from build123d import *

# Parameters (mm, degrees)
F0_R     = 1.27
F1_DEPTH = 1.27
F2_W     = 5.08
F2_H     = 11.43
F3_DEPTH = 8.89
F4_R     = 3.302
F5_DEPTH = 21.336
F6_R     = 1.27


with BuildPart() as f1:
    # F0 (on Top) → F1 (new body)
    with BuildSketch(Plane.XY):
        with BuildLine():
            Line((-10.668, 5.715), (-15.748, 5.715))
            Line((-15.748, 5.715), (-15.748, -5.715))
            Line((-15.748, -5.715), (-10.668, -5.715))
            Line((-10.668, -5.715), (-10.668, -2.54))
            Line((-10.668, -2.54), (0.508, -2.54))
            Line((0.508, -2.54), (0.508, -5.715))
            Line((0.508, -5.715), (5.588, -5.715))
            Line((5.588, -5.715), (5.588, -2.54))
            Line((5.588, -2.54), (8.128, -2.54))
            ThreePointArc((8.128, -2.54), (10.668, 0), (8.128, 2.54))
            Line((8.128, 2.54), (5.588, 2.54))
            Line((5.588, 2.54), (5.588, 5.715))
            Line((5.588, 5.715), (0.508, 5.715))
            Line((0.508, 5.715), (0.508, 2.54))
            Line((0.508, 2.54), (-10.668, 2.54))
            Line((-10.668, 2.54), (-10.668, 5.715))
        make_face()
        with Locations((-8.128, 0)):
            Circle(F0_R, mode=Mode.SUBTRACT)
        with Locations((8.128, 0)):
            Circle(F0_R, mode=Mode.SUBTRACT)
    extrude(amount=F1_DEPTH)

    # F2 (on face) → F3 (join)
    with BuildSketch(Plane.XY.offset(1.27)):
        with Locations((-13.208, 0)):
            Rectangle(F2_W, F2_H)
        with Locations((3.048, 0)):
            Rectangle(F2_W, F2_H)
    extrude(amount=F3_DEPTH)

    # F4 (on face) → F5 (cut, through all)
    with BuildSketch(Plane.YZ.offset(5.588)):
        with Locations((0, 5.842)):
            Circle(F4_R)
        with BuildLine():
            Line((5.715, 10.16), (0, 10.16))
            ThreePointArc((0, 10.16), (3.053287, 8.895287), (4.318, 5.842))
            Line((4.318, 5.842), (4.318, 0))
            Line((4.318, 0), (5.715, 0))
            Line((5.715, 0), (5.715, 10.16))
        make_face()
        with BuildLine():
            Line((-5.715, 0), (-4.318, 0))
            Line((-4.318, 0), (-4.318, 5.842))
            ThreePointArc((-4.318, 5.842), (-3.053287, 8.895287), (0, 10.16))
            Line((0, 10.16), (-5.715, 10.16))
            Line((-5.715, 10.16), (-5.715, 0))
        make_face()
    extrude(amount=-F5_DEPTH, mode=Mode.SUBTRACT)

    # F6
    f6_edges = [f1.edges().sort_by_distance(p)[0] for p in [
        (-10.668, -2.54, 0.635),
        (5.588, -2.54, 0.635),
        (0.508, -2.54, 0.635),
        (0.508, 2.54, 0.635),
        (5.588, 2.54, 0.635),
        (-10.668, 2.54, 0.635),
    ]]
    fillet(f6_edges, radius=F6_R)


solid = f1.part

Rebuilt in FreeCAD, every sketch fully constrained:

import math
import FreeCAD as App
import Part
import Sketcher
Q = App.Units.Quantity


def edges_at(feature, points):
    """Names of the edges that pass closest to the given points."""
    edges = feature.Shape.Edges
    near = lambda p: min(range(len(edges)), key=lambda i: edges[i].distToShape(Part.Vertex(*p))[0])
    return sorted({f"Edge{near(p) + 1}" for p in points})


def add_polygon(sketch, points):
    """Adds a closed chain of lines whose ends are joined by coincident constraints."""
    first, n = sketch.GeometryCount, len(points)
    for a, b in zip(points, points[1:] + points[:1]):
        sketch.addGeometry(Part.LineSegment(App.Vector(*a, 0), App.Vector(*b, 0)), False)
    for i in range(n):
        sketch.addConstraint(Sketcher.Constraint("Coincident", first + i, 2, first + (i + 1) % n, 1))

doc = App.newDocument("Part")
params = doc.addObject("Spreadsheet::Sheet", "Params")
for row, (alias, value) in enumerate([
    ("sketch1_diameter", "0.1 in"),
    ("sketch1_radius", "0.1 in"),
    ("sketch1_width", "0.2 in"),
    ("sketch1_width2", "0.1 in"),
    ("sketch1_width3", "0.44 in"),
    ("pad1_length", "0.05 in"),
    ("sketch2_width", "0.2 in"),
    ("sketch2_height", "0.45 in"),
    ("pad2_length", "0.35 in"),
    ("sketch3_diameter", "0.26 in"),
    ("sketch3_radius", "0.17 in"),
    ("sketch3_height", "0.4 in"),
    ("sketch3_width", "0.225 in"),
    ("fillet_radius", "0.05 in"),
], start=1):
    params.set(f"A{row}", alias)
    params.set(f"B{row}", "=" + value)
    params.setAlias(f"B{row}", alias)

body = doc.addObject("PartDesign::Body", "Body")

# Sketch on XY plane
sketch1 = body.newObject("Sketcher::SketchObject", "Sketch")
sketch1.AttachmentSupport = (doc.getObject("XY_Plane"), [""])
sketch1.MapMode = "FlatFace"
sketch1.addGeometry([
    Part.LineSegment(App.Vector(-10.7, 5.7, 0), App.Vector(-15.7, 5.7, 0)),  # 0
    Part.LineSegment(App.Vector(-15.7, 5.7, 0), App.Vector(-15.7, -5.7, 0)),  # 1
    Part.LineSegment(App.Vector(-15.7, -5.7, 0), App.Vector(-10.7, -5.7, 0)),  # 2
    Part.LineSegment(App.Vector(-10.7, -5.7, 0), App.Vector(-10.7, -2.5, 0)),  # 3
    Part.LineSegment(App.Vector(-10.7, -2.5, 0), App.Vector(0.5, -2.5, 0)),  # 4
    Part.LineSegment(App.Vector(0.5, -2.5, 0), App.Vector(0.5, -5.7, 0)),  # 5
    Part.LineSegment(App.Vector(0.5, -5.7, 0), App.Vector(5.6, -5.7, 0)),  # 6
    Part.LineSegment(App.Vector(5.6, -5.7, 0), App.Vector(5.6, -2.5, 0)),  # 7
    Part.LineSegment(App.Vector(5.6, -2.5, 0), App.Vector(8.1, -2.5, 0)),  # 8
    Part.ArcOfCircle(Part.Circle(App.Vector(8.1, 0, 0), App.Vector(0, 0, 1), 2.5), math.radians(-90), math.radians(90)),  # 9
    Part.LineSegment(App.Vector(8.1, 2.5, 0), App.Vector(5.6, 2.5, 0)),  # 10
    Part.LineSegment(App.Vector(5.6, 2.5, 0), App.Vector(5.6, 5.7, 0)),  # 11
    Part.LineSegment(App.Vector(5.6, 5.7, 0), App.Vector(0.5, 5.7, 0)),  # 12
    Part.LineSegment(App.Vector(0.5, 5.7, 0), App.Vector(0.5, 2.5, 0)),  # 13
    Part.LineSegment(App.Vector(0.5, 2.5, 0), App.Vector(-10.7, 2.5, 0)),  # 14
    Part.LineSegment(App.Vector(-10.7, 2.5, 0), App.Vector(-10.7, 5.7, 0)),  # 15
    Part.Circle(App.Vector(-8.1, 0, 0), App.Vector(0, 0, 1), 1.3),  # 16
    Part.Circle(App.Vector(8.1, 0, 0), App.Vector(0, 0, 1), 1.3),  # 17
], False)
sketch1.addConstraint([
    Sketcher.Constraint("Coincident", 0, 2, 1, 1),
    Sketcher.Constraint("Coincident", 1, 2, 2, 1),
    Sketcher.Constraint("Coincident", 2, 2, 3, 1),
    Sketcher.Constraint("Coincident", 3, 2, 4, 1),
    Sketcher.Constraint("Coincident", 4, 2, 5, 1),
    Sketcher.Constraint("Coincident", 5, 2, 6, 1),
    Sketcher.Constraint("Coincident", 6, 2, 7, 1),
    Sketcher.Constraint("Coincident", 7, 2, 8, 1),
    Sketcher.Constraint("Tangent", 8, 2, 9, 1),
    Sketcher.Constraint("Tangent", 9, 2, 10, 1),
    Sketcher.Constraint("Coincident", 10, 2, 11, 1),
    Sketcher.Constraint("Coincident", 11, 2, 12, 1),
    Sketcher.Constraint("Coincident", 12, 2, 13, 1),
    Sketcher.Constraint("Coincident", 13, 2, 14, 1),
    Sketcher.Constraint("Coincident", 14, 2, 15, 1),
    Sketcher.Constraint("Coincident", 15, 2, 0, 1),
    Sketcher.Constraint("Horizontal", 0),
    Sketcher.Constraint("Vertical", 1),
    Sketcher.Constraint("Horizontal", 2),
    Sketcher.Constraint("Vertical", 3),
    Sketcher.Constraint("Horizontal", 4),
    Sketcher.Constraint("Vertical", 5),
    Sketcher.Constraint("Horizontal", 6),
    Sketcher.Constraint("Vertical", 7),
    Sketcher.Constraint("Horizontal", 8),
    Sketcher.Constraint("Horizontal", 10),
    Sketcher.Constraint("Vertical", 11),
    Sketcher.Constraint("Horizontal", 12),
    Sketcher.Constraint("Vertical", 13),
    Sketcher.Constraint("Horizontal", 14),
    Sketcher.Constraint("Vertical", 15),
    Sketcher.Constraint("Coincident", 17, 3, 9, 3),
    Sketcher.Constraint("Equal", 16, 17),
    Sketcher.Constraint("Symmetric", 9, 3, 16, 3, -1, 1),
    Sketcher.Constraint("Symmetric", 7, 2, 10, 2, -1),
    Sketcher.Constraint("Symmetric", 5, 2, 12, 2, -1),
    Sketcher.Constraint("Symmetric", 3, 2, 14, 2, -1),
    Sketcher.Constraint("Horizontal", 2, 2, 5, 2),
    Sketcher.Constraint("Horizontal", 4, 2, 7, 2),
    Sketcher.Constraint("Horizontal", 0, 2, 11, 2),
    Sketcher.Constraint("Equal", 2, 6),
    Sketcher.Constraint("Diameter", 16, Q("0.1 in")),
    Sketcher.Constraint("Radius", 9, Q("0.1 in")),
    Sketcher.Constraint("DistanceX", 0, 2, 0, 1, Q("0.2 in")),
    Sketcher.Constraint("DistanceX", 8, 1, 8, 2, Q("0.1 in")),
    Sketcher.Constraint("DistanceX", 4, 1, 4, 2, Q("0.44 in")),
    Sketcher.Constraint("DistanceY", 1, 2, 1, 1, Q("0.45 in")),
    Sketcher.Constraint("DistanceX", 0, 2, 16, 3, Q("0.3 in")),
])
sketch1.setExpression("Constraints[41]", "Params.sketch1_diameter")
sketch1.setExpression("Constraints[42]", "Params.sketch1_radius")
sketch1.setExpression("Constraints[43]", "Params.sketch1_width")
sketch1.setExpression("Constraints[44]", "Params.sketch1_width2")
sketch1.setExpression("Constraints[45]", "Params.sketch1_width3")
pad1 = body.newObject("PartDesign::Pad", "Pad")
pad1.Profile = sketch1
pad1.setExpression("Length", "Params.pad1_length")

# Sketch on XY plane
sketch2 = body.newObject("Sketcher::SketchObject", "Sketch001")
sketch2.AttachmentSupport = (doc.getObject("XY_Plane"), [""])
sketch2.MapMode = "FlatFace"
sketch2.AttachmentOffset = App.Placement(App.Vector(0, 0, 0.05 * 25.4), App.Rotation())
add_polygon(sketch2, [(-16, 6), (-16, -6), (-11, -6), (-11, 6)])  # lines 0-3
add_polygon(sketch2, [(1, 6), (1, -6), (6, -6), (6, 6)])  # lines 4-7
sketch2.addConstraint([
    Sketcher.Constraint("Vertical", 0),
    Sketcher.Constraint("Horizontal", 1),
    Sketcher.Constraint("Vertical", 2),
    Sketcher.Constraint("Horizontal", 3),
    Sketcher.Constraint("Vertical", 4),
    Sketcher.Constraint("Horizontal", 5),
    Sketcher.Constraint("Vertical", 6),
    Sketcher.Constraint("Horizontal", 7),
    Sketcher.Constraint("Horizontal", 1, 2, 4, 2),
    Sketcher.Constraint("Horizontal", 3, 2, 6, 2),
    Sketcher.Constraint("Equal", 3, 5),
    Sketcher.Constraint("DistanceX", 1, 1, 1, 2, Q("0.2 in")),
    Sketcher.Constraint("DistanceY", 0, 2, 0, 1, Q("0.45 in")),
    Sketcher.Constraint("DistanceX", 0, 2, -1, 1, Q("0.62 in")),
    Sketcher.Constraint("DistanceX", -1, 1, 4, 2, Q("0.02 in")),
    Sketcher.Constraint("DistanceY", 0, 2, -1, 1, Q("0.225 in")),
])
sketch2.setExpression("Constraints[19]", "Params.sketch2_width")
sketch2.setExpression("Constraints[20]", "Params.sketch2_height")
pad2 = body.newObject("PartDesign::Pad", "Pad001")
pad2.Profile = sketch2
pad2.setExpression("Length", "Params.pad2_length")

# Sketch on YZ plane
sketch3 = body.newObject("Sketcher::SketchObject", "Sketch002")
sketch3.AttachmentSupport = (doc.getObject("YZ_Plane"), [""])
sketch3.MapMode = "FlatFace"
sketch3.AttachmentOffset = App.Placement(App.Vector(0, 0, 0.22 * 25.4), App.Rotation())
sketch3.addGeometry([
    Part.Circle(App.Vector(0, 5.8, 0), App.Vector(0, 0, 1), 3.3),  # 0
    Part.LineSegment(App.Vector(5.7, 10.2, 0), App.Vector(0, 10.2, 0)),  # 1
    Part.ArcOfCircle(Part.Circle(App.Vector(0, 5.8, 0), App.Vector(0, 0, 1), 4.3), math.radians(0), math.radians(90)),  # 2
    Part.LineSegment(App.Vector(4.3, 5.8, 0), App.Vector(4.3, 0, 0)),  # 3
    Part.LineSegment(App.Vector(4.3, 0, 0), App.Vector(5.7, 0, 0)),  # 4
    Part.LineSegment(App.Vector(5.7, 0, 0), App.Vector(5.7, 10.2, 0)),  # 5
    Part.LineSegment(App.Vector(-5.7, 0, 0), App.Vector(-4.3, 0, 0)),  # 6
    Part.LineSegment(App.Vector(-4.3, 0, 0), App.Vector(-4.3, 5.8, 0)),  # 7
    Part.ArcOfCircle(Part.Circle(App.Vector(0, 5.8, 0), App.Vector(0, 0, 1), 4.3), math.radians(90), math.radians(180)),  # 8
    Part.LineSegment(App.Vector(0, 10.2, 0), App.Vector(-5.7, 10.2, 0)),  # 9
    Part.LineSegment(App.Vector(-5.7, 10.2, 0), App.Vector(-5.7, 0, 0)),  # 10
], False)
sketch3.addConstraint([
    Sketcher.Constraint("Tangent", 1, 2, 2, 2),
    Sketcher.Constraint("Tangent", 2, 1, 3, 1),
    Sketcher.Constraint("Coincident", 3, 2, 4, 1),
    Sketcher.Constraint("Coincident", 4, 2, 5, 1),
    Sketcher.Constraint("Coincident", 5, 2, 1, 1),
    Sketcher.Constraint("Coincident", 6, 2, 7, 1),
    Sketcher.Constraint("Tangent", 7, 2, 8, 2),
    Sketcher.Constraint("Tangent", 8, 1, 9, 1),
    Sketcher.Constraint("Coincident", 9, 2, 10, 1),
    Sketcher.Constraint("Coincident", 10, 2, 6, 1),
    Sketcher.Constraint("Horizontal", 1),
    Sketcher.Constraint("Vertical", 3),
    Sketcher.Constraint("Horizontal", 4),
    Sketcher.Constraint("Vertical", 5),
    Sketcher.Constraint("Horizontal", 6),
    Sketcher.Constraint("Vertical", 7),
    Sketcher.Constraint("Horizontal", 9),
    Sketcher.Constraint("Vertical", 10),
    Sketcher.Constraint("Coincident", 2, 3, 0, 3),
    Sketcher.Constraint("Coincident", 8, 3, 0, 3),
    Sketcher.Constraint("Equal", 2, 8),
    Sketcher.Constraint("Symmetric", 3, 2, 6, 2, -1, 1),
    Sketcher.Constraint("Symmetric", 4, 2, 10, 2, -2),
    Sketcher.Constraint("Diameter", 0, Q("0.26 in")),
    Sketcher.Constraint("Radius", 2, Q("0.17 in")),
    Sketcher.Constraint("DistanceY", 5, 1, 5, 2, Q("0.4 in")),
    Sketcher.Constraint("DistanceX", 1, 2, 1, 1, Q("0.225 in")),
])
sketch3.setExpression("Constraints[23]", "Params.sketch3_diameter")
sketch3.setExpression("Constraints[24]", "Params.sketch3_radius")
sketch3.setExpression("Constraints[25]", "Params.sketch3_height")
sketch3.setExpression("Constraints[26]", "Params.sketch3_width")
pocket1 = body.newObject("PartDesign::Pocket", "Pocket")
pocket1.Profile = sketch3
pocket1.Type = "ThroughAll"
doc.recompute()

fillet = body.newObject("PartDesign::Fillet", "Fillet")
fillet.Base = (pocket1, edges_at(pocket1, [
    (-10.668, -2.54, 0.635),
    (5.588, -2.54, 0.635),
    (0.508, -2.54, 0.635),
    (0.508, 2.54, 0.635),
    (5.588, 2.54, 0.635),
    (-10.668, 2.54, 0.635),
]))
fillet.setExpression("Radius", "Params.fillet_radius")

doc.recompute()
